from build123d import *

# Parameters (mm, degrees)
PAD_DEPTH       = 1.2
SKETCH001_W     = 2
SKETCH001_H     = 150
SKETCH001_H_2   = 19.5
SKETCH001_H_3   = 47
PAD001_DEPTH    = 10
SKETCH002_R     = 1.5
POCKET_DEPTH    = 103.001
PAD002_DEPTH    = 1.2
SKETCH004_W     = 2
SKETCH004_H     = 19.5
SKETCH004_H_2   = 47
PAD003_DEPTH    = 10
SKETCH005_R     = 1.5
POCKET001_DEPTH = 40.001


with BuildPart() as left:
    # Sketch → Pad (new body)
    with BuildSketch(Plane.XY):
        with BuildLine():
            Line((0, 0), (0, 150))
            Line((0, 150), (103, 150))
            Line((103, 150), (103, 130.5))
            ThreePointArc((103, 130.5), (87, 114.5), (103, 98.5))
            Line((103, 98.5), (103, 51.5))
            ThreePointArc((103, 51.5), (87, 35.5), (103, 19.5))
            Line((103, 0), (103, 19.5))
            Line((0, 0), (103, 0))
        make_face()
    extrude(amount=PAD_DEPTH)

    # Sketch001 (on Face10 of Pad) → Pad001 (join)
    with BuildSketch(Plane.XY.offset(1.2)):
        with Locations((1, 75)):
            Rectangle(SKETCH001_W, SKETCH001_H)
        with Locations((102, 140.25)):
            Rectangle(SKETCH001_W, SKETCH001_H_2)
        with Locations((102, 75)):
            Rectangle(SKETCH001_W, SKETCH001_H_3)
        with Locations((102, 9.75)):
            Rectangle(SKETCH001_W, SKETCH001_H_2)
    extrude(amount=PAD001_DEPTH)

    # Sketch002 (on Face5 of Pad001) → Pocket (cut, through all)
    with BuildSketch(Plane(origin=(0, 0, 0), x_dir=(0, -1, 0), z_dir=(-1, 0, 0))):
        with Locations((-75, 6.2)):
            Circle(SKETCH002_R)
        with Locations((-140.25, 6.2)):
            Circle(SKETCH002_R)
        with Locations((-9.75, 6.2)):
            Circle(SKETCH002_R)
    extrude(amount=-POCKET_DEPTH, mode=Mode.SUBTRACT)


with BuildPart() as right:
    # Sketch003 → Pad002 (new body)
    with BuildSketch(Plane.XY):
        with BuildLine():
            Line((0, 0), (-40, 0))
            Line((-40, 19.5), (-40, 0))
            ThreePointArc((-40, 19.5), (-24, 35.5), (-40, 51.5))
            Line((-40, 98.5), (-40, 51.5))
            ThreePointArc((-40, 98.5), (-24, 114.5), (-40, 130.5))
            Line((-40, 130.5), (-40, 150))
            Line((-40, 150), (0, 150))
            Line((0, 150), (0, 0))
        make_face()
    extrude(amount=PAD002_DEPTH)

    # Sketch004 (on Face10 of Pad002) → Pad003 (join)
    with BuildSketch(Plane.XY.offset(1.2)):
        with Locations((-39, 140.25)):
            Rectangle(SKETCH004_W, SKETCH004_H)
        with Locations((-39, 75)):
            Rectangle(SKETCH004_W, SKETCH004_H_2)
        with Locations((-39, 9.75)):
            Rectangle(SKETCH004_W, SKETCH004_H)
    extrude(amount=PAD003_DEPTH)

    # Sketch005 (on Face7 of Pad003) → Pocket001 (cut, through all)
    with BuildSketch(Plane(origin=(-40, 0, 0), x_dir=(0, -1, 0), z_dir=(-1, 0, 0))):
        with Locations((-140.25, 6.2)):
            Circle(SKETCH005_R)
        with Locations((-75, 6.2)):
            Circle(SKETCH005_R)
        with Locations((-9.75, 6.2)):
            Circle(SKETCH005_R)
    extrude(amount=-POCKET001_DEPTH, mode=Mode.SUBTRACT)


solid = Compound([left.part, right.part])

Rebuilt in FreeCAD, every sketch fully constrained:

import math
import FreeCAD as App
import Part
import Sketcher

V = App.Vector

doc = App.newDocument("Part")
body = doc.addObject("PartDesign::Body", "Body")

# Sketch on XY plane
sketch1 = body.newObject("Sketcher::SketchObject", "Sketch")
sketch1.AttachmentSupport = (doc.getObject("XY_Plane"), [""])
sketch1.MapMode = "FlatFace"
sketch1.addGeometry(Part.LineSegment(V(0, 150, 0), V(0, 0, 0)), False)
sketch1.addGeometry(Part.LineSegment(V(0, 0, 0), V(103, 0, 0)), False)
sketch1.addGeometry(Part.LineSegment(V(103, 0, 0), V(103, 20, 0)), False)
sketch1.addGeometry(Part.ArcOfCircle(Part.Circle(V(103, 36, 0), V(0, 0, 1), 16), math.radians(90), math.radians(270)), False)
sketch1.addGeometry(Part.LineSegment(V(103, 52, 0), V(103, 98, 0)), False)
sketch1.addGeometry(Part.ArcOfCircle(Part.Circle(V(103, 114, 0), V(0, 0, 1), 16), math.radians(90), math.radians(270)), False)
sketch1.addGeometry(Part.LineSegment(V(103, 130, 0), V(103, 150, 0)), False)
sketch1.addGeometry(Part.LineSegment(V(103, 150, 0), V(0, 150, 0)), False)
sketch1.addConstraint(Sketcher.Constraint("Coincident", 0, 2, 1, 1))
sketch1.addConstraint(Sketcher.Constraint("Coincident", 1, 2, 2, 1))
sketch1.addConstraint(Sketcher.Constraint("Coincident", 2, 2, 3, 2))
sketch1.addConstraint(Sketcher.Constraint("Coincident", 3, 1, 4, 1))
sketch1.addConstraint(Sketcher.Constraint("Coincident", 4, 2, 5, 2))
sketch1.addConstraint(Sketcher.Constraint("Coincident", 5, 1, 6, 1))
sketch1.addConstraint(Sketcher.Constraint("Coincident", 6, 2, 7, 1))
sketch1.addConstraint(Sketcher.Constraint("Coincident", 7, 2, 0, 1))
sketch1.addConstraint(Sketcher.Constraint("Vertical", 0))
sketch1.addConstraint(Sketcher.Constraint("Horizontal", 1))
sketch1.addConstraint(Sketcher.Constraint("Vertical", 2))
sketch1.addConstraint(Sketcher.Constraint("Vertical", 4))
sketch1.addConstraint(Sketcher.Constraint("Vertical", 6))
sketch1.addConstraint(Sketcher.Constraint("Horizontal", 7))
sketch1.addConstraint(Sketcher.Constraint("Coincident", 0, 2, -1, 1))
sketch1.addConstraint(Sketcher.Constraint("Equal", 3, 5))
sketch1.addConstraint(Sketcher.Constraint("Vertical", 3, 3, 5, 3))
sketch1.addConstraint(Sketcher.Constraint("Vertical", 5, 3, 1, 2))
sketch1.addConstraint(Sketcher.Constraint("Vertical", 2, 2, 3, 1))
sketch1.addConstraint(Sketcher.Constraint("Vertical", 4, 2, 5, 1))
sketch1.addConstraint(Sketcher.Constraint("Equal", 2, 6))
sketch1.addConstraint(Sketcher.Constraint("Radius", 3, 16.0))
sketch1.addConstraint(Sketcher.Constraint("DistanceX", 1, 1, 1, 2, 103.0))
sketch1.addConstraint(Sketcher.Constraint("DistanceY", 0, 2, 0, 1, 150.0))
sketch1.addConstraint(Sketcher.Constraint("DistanceY", 4, 1, 4, 2, 47.0))
pad1 = body.newObject("PartDesign::Pad", "Pad")
pad1.Profile = sketch1
pad1.Length = 1.2

# Sketch on XY plane
sketch2 = body.newObject("Sketcher::SketchObject", "Sketch001")
sketch2.AttachmentSupport = (doc.getObject("XY_Plane"), [""])
sketch2.MapMode = "FlatFace"
sketch2.AttachmentOffset = App.Placement(V(0, 0, 1.2), App.Rotation())
sketch2.addGeometry(Part.LineSegment(V(0, 150, 0), V(0, 0, 0)), False)
sketch2.addGeometry(Part.LineSegment(V(0, 0, 0), V(2, 0, 0)), False)
sketch2.addGeometry(Part.LineSegment(V(2, 0, 0), V(2, 150, 0)), False)
sketch2.addGeometry(Part.LineSegment(V(2, 150, 0), V(0, 150, 0)), False)
sketch2.addGeometry(Part.LineSegment(V(101, 150, 0), V(101, 130.5, 0)), False)
sketch2.addGeometry(Part.LineSegment(V(101, 130.5, 0), V(103, 130.5, 0)), False)
sketch2.addGeometry(Part.LineSegment(V(103, 130.5, 0), V(103, 150, 0)), False)
sketch2.addGeometry(Part.LineSegment(V(103, 150, 0), V(101, 150, 0)), False)
sketch2.addGeometry(Part.LineSegment(V(101, 98.5, 0), V(101, 51.5, 0)), False)
sketch2.addGeometry(Part.LineSegment(V(101, 51.5, 0), V(103, 51.5, 0)), False)
sketch2.addGeometry(Part.LineSegment(V(103, 51.5, 0), V(103, 98.5, 0)), False)
sketch2.addGeometry(Part.LineSegment(V(103, 98.5, 0), V(101, 98.5, 0)), False)
sketch2.addGeometry(Part.LineSegment(V(101, 19.5, 0), V(101, 0, 0)), False)
sketch2.addGeometry(Part.LineSegment(V(101, 0, 0), V(103, 0, 0)), False)
sketch2.addGeometry(Part.LineSegment(V(103, 0, 0), V(103, 19.5, 0)), False)
sketch2.addGeometry(Part.LineSegment(V(103, 19.5, 0), V(101, 19.5, 0)), False)
sketch2.addConstraint(Sketcher.Constraint("Coincident", 0, 2, 1, 1))
sketch2.addConstraint(Sketcher.Constraint("Coincident", 1, 2, 2, 1))
sketch2.addConstraint(Sketcher.Constraint("Coincident", 2, 2, 3, 1))
sketch2.addConstraint(Sketcher.Constraint("Coincident", 3, 2, 0, 1))
sketch2.addConstraint(Sketcher.Constraint("Coincident", 4, 2, 5, 1))
sketch2.addConstraint(Sketcher.Constraint("Coincident", 5, 2, 6, 1))
sketch2.addConstraint(Sketcher.Constraint("Coincident", 6, 2, 7, 1))
sketch2.addConstraint(Sketcher.Constraint("Coincident", 7, 2, 4, 1))
sketch2.addConstraint(Sketcher.Constraint("Coincident", 8, 2, 9, 1))
sketch2.addConstraint(Sketcher.Constraint("Coincident", 9, 2, 10, 1))
sketch2.addConstraint(Sketcher.Constraint("Coincident", 10, 2, 11, 1))
sketch2.addConstraint(Sketcher.Constraint("Coincident", 11, 2, 8, 1))
sketch2.addConstraint(Sketcher.Constraint("Coincident", 12, 2, 13, 1))
sketch2.addConstraint(Sketcher.Constraint("Coincident", 13, 2, 14, 1))
sketch2.addConstraint(Sketcher.Constraint("Coincident", 14, 2, 15, 1))
sketch2.addConstraint(Sketcher.Constraint("Coincident", 15, 2, 12, 1))
sketch2.addConstraint(Sketcher.Constraint("Vertical", 0))
sketch2.addConstraint(Sketcher.Constraint("Horizontal", 1))
sketch2.addConstraint(Sketcher.Constraint("Vertical", 2))
sketch2.addConstraint(Sketcher.Constraint("Horizontal", 3))
sketch2.addConstraint(Sketcher.Constraint("Vertical", 4))
sketch2.addConstraint(Sketcher.Constraint("Horizontal", 5))
sketch2.addConstraint(Sketcher.Constraint("Vertical", 6))
sketch2.addConstraint(Sketcher.Constraint("Horizontal", 7))
sketch2.addConstraint(Sketcher.Constraint("Vertical", 8))
sketch2.addConstraint(Sketcher.Constraint("Horizontal", 9))
sketch2.addConstraint(Sketcher.Constraint("Vertical", 10))
sketch2.addConstraint(Sketcher.Constraint("Horizontal", 11))
sketch2.addConstraint(Sketcher.Constraint("Vertical", 12))
sketch2.addConstraint(Sketcher.Constraint("Horizontal", 13))
sketch2.addConstraint(Sketcher.Constraint("Vertical", 14))
sketch2.addConstraint(Sketcher.Constraint("Horizontal", 15))
sketch2.addConstraint(Sketcher.Constraint("Coincident", 0, 2, -1, 1))
sketch2.addConstraint(Sketcher.Constraint("PointOnObject", 12, 2, -1))
sketch2.addConstraint(Sketcher.Constraint("Horizontal", 3, 2, 6, 2))
sketch2.addConstraint(Sketcher.Constraint("Vertical", 7, 2, 8, 2))
sketch2.addConstraint(Sketcher.Constraint("Vertical", 6, 2, 9, 2))
sketch2.addConstraint(Sketcher.Constraint("Vertical", 11, 2, 12, 2))
sketch2.addConstraint(Sketcher.Constraint("Vertical", 10, 2, 13, 2))
sketch2.addConstraint(Sketcher.Constraint("Equal", 3, 5))
sketch2.addConstraint(Sketcher.Constraint("Equal", 6, 12))
sketch2.addConstraint(Sketcher.Constraint("DistanceX", 1, 1, 1, 2, 2.0))
sketch2.addConstraint(Sketcher.Constraint("DistanceY", 0, 2, 0, 1, 150.0))
sketch2.addConstraint(Sketcher.Constraint("DistanceY", 8, 2, 8, 1, 47.0))
sketch2.addConstraint(Sketcher.Constraint("DistanceY", 4, 2, 4, 1, 19.5))
sketch2.addConstraint(Sketcher.Constraint("DistanceX", -1, 1, 4, 2, 101.0))
sketch2.addConstraint(Sketcher.Constraint("DistanceY", 8, 2, 4, 2, 79.0))
pad2 = body.newObject("PartDesign::Pad", "Pad001")
pad2.Profile = sketch2
pad2.Length = 10

# Sketch on YZ plane
sketch3 = body.newObject("Sketcher::SketchObject", "Sketch002")
sketch3.AttachmentSupport = (doc.getObject("YZ_Plane"), [""])
sketch3.MapMode = "FlatFace"
sketch3.addGeometry(Part.Circle(V(75, 6.2, 0), V(0, 0, 1), 1.5), False)
sketch3.addGeometry(Part.Circle(V(140.2, 6.2, 0), V(0, 0, 1), 1.5), False)
sketch3.addGeometry(Part.Circle(V(9.8, 6.2, 0), V(0, 0, 1), 1.5), False)
sketch3.addConstraint(Sketcher.Constraint("Equal", 0, 1))
sketch3.addConstraint(Sketcher.Constraint("Equal", 1, 2))
sketch3.addConstraint(Sketcher.Constraint("Horizontal", 0, 3, 1, 3))
sketch3.addConstraint(Sketcher.Constraint("Horizontal", 1, 3, 2, 3))
sketch3.addConstraint(Sketcher.Constraint("Diameter", 0, 3.0))
sketch3.addConstraint(Sketcher.Constraint("DistanceX", -1, 1, 0, 3, 75.0))
sketch3.addConstraint(Sketcher.Constraint("DistanceY", -1, 1, 0, 3, 6.2))
sketch3.addConstraint(Sketcher.Constraint("DistanceX", 2, 3, 1, 3, 130.5))
sketch3.addConstraint(Sketcher.Constraint("DistanceX", -1, 1, 1, 3, 140.25))
pocket1 = body.newObject("PartDesign::Pocket", "Pocket")
pocket1.Profile = sketch3
pocket1.Type = "ThroughAll"
pocket1.Reversed = True
body2 = doc.addObject("PartDesign::Body", "Body001")

# Sketch on XY plane
sketch4 = body2.newObject("Sketcher::SketchObject", "Sketch003")
sketch4.AttachmentSupport = (doc.getObject("XY_Plane001"), [""])
sketch4.MapMode = "FlatFace"
sketch4.addGeometry(Part.LineSegment(V(-40, 0, 0), V(0, 0, 0)), False)
sketch4.addGeometry(Part.LineSegment(V(0, 0, 0), V(0, 150, 0)), False)
sketch4.addGeometry(Part.LineSegment(V(0, 150, 0), V(-40, 150, 0)), False)
sketch4.addGeometry(Part.LineSegment(V(-40, 150, 0), V(-40, 130, 0)), False)
sketch4.addGeometry(Part.ArcOfCircle(Part.Circle(V(-40, 114, 0), V(0, 0, 1), 16), math.radians(-90), math.radians(90)), False)
sketch4.addGeometry(Part.LineSegment(V(-40, 98, 0), V(-40, 52, 0)), False)
sketch4.addGeometry(Part.ArcOfCircle(Part.Circle(V(-40, 36, 0), V(0, 0, 1), 16), math.radians(-90), math.radians(90)), False)
sketch4.addGeometry(Part.LineSegment(V(-40, 20, 0), V(-40, 0, 0)), False)
sketch4.addConstraint(Sketcher.Constraint("Coincident", 0, 2, 1, 1))
sketch4.addConstraint(Sketcher.Constraint("Coincident", 1, 2, 2, 1))
sketch4.addConstraint(Sketcher.Constraint("Coincident", 2, 2, 3, 1))
sketch4.addConstraint(Sketcher.Constraint("Coincident", 3, 2, 4, 2))
sketch4.addConstraint(Sketcher.Constraint("Coincident", 4, 1, 5, 1))
sketch4.addConstraint(Sketcher.Constraint("Coincident", 5, 2, 6, 2))
sketch4.addConstraint(Sketcher.Constraint("Coincident", 6, 1, 7, 1))
sketch4.addConstraint(Sketcher.Constraint("Coincident", 7, 2, 0, 1))
sketch4.addConstraint(Sketcher.Constraint("Horizontal", 0))
sketch4.addConstraint(Sketcher.Constraint("Vertical", 1))
sketch4.addConstraint(Sketcher.Constraint("Horizontal", 2))
sketch4.addConstraint(Sketcher.Constraint("Vertical", 3))
sketch4.addConstraint(Sketcher.Constraint("Vertical", 5))
sketch4.addConstraint(Sketcher.Constraint("Vertical", 7))
sketch4.addConstraint(Sketcher.Constraint("Coincident", 0, 2, -1, 1))
sketch4.addConstraint(Sketcher.Constraint("Equal", 4, 6))
sketch4.addConstraint(Sketcher.Constraint("Vertical", 4, 3, 6, 3))
sketch4.addConstraint(Sketcher.Constraint("Vertical", 6, 3, 2, 2))
sketch4.addConstraint(Sketcher.Constraint("Vertical", 3, 2, 4, 1))
sketch4.addConstraint(Sketcher.Constraint("Vertical", 5, 2, 6, 1))
sketch4.addConstraint(Sketcher.Constraint("Equal", 3, 7))
sketch4.addConstraint(Sketcher.Constraint("Radius", 4, 16.0))
sketch4.addConstraint(Sketcher.Constraint("DistanceX", 0, 1, 0, 2, 40.0))
sketch4.addConstraint(Sketcher.Constraint("DistanceY", 1, 1, 1, 2, 150.0))
sketch4.addConstraint(Sketcher.Constraint("DistanceY", 5, 2, 5, 1, 47.0))
pad3 = body2.newObject("PartDesign::Pad", "Pad002")
pad3.Profile = sketch4
pad3.Length = 1.2

# Sketch on XY plane
sketch5 = body2.newObject("Sketcher::SketchObject", "Sketch004")
sketch5.AttachmentSupport = (doc.getObject("XY_Plane001"), [""])
sketch5.MapMode = "FlatFace"
sketch5.AttachmentOffset = App.Placement(V(0, 0, 1.2), App.Rotation())
sketch5.addGeometry(Part.LineSegment(V(-40, 150, 0), V(-40, 130.5, 0)), False)
sketch5.addGeometry(Part.LineSegment(V(-40, 130.5, 0), V(-38, 130.5, 0)), False)
sketch5.addGeometry(Part.LineSegment(V(-38, 130.5, 0), V(-38, 150, 0)), False)
sketch5.addGeometry(Part.LineSegment(V(-38, 150, 0), V(-40, 150, 0)), False)
sketch5.addGeometry(Part.LineSegment(V(-40, 98.5, 0), V(-40, 51.5, 0)), False)
sketch5.addGeometry(Part.LineSegment(V(-40, 51.5, 0), V(-38, 51.5, 0)), False)
sketch5.addGeometry(Part.LineSegment(V(-38, 51.5, 0), V(-38, 98.5, 0)), False)
sketch5.addGeometry(Part.LineSegment(V(-38, 98.5, 0), V(-40, 98.5, 0)), False)
sketch5.addGeometry(Part.LineSegment(V(-40, 19.5, 0), V(-40, 0, 0)), False)
sketch5.addGeometry(Part.LineSegment(V(-40, 0, 0), V(-38, 0, 0)), False)
sketch5.addGeometry(Part.LineSegment(V(-38, 0, 0), V(-38, 19.5, 0)), False)
sketch5.addGeometry(Part.LineSegment(V(-38, 19.5, 0), V(-40, 19.5, 0)), False)
sketch5.addConstraint(Sketcher.Constraint("Coincident", 0, 2, 1, 1))
sketch5.addConstraint(Sketcher.Constraint("Coincident", 1, 2, 2, 1))
sketch5.addConstraint(Sketcher.Constraint("Coincident", 2, 2, 3, 1))
sketch5.addConstraint(Sketcher.Constraint("Coincident", 3, 2, 0, 1))
sketch5.addConstraint(Sketcher.Constraint("Coincident", 4, 2, 5, 1))
sketch5.addConstraint(Sketcher.Constraint("Coincident", 5, 2, 6, 1))
sketch5.addConstraint(Sketcher.Constraint("Coincident", 6, 2, 7, 1))
sketch5.addConstraint(Sketcher.Constraint("Coincident", 7, 2, 4, 1))
sketch5.addConstraint(Sketcher.Constraint("Coincident", 8, 2, 9, 1))
sketch5.addConstraint(Sketcher.Constraint("Coincident", 9, 2, 10, 1))
sketch5.addConstraint(Sketcher.Constraint("Coincident", 10, 2, 11, 1))
sketch5.addConstraint(Sketcher.Constraint("Coincident", 11, 2, 8, 1))
sketch5.addConstraint(Sketcher.Constraint("Vertical", 0))
sketch5.addConstraint(Sketcher.Constraint("Horizontal", 1))
sketch5.addConstraint(Sketcher.Constraint("Vertical", 2))
sketch5.addConstraint(Sketcher.Constraint("Horizontal", 3))
sketch5.addConstraint(Sketcher.Constraint("Vertical", 4))
sketch5.addConstraint(Sketcher.Constraint("Horizontal", 5))
sketch5.addConstraint(Sketcher.Constraint("Vertical", 6))
sketch5.addConstraint(Sketcher.Constraint("Horizontal", 7))
sketch5.addConstraint(Sketcher.Constraint("Vertical", 8))
sketch5.addConstraint(Sketcher.Constraint("Horizontal", 9))
sketch5.addConstraint(Sketcher.Constraint("Vertical", 10))
sketch5.addConstraint(Sketcher.Constraint("Horizontal", 11))
sketch5.addConstraint(Sketcher.Constraint("PointOnObject", 8, 2, -1))
sketch5.addConstraint(Sketcher.Constraint("Vertical", 3, 2, 4, 2))
sketch5.addConstraint(Sketcher.Constraint("Vertical", 2, 2, 5, 2))
sketch5.addConstraint(Sketcher.Constraint("Vertical", 7, 2, 8, 2))
sketch5.addConstraint(Sketcher.Constraint("Vertical", 6, 2, 9, 2))
sketch5.addConstraint(Sketcher.Constraint("Equal", 2, 8))
sketch5.addConstraint(Sketcher.Constraint("DistanceX", 1, 1, 1, 2, 2.0))
sketch5.addConstraint(Sketcher.Constraint("DistanceY", 4, 2, 4, 1, 47.0))
sketch5.addConstraint(Sketcher.Constraint("DistanceY", 0, 2, 0, 1, 19.5))
sketch5.addConstraint(Sketcher.Constraint("DistanceX", 0, 2, -1, 1, 40.0))
sketch5.addConstraint(Sketcher.Constraint("DistanceY", -1, 1, 2, 2, 150.0))
sketch5.addConstraint(Sketcher.Constraint("DistanceY", 4, 2, 0, 2, 79.0))
pad4 = body2.newObject("PartDesign::Pad", "Pad003")
pad4.Profile = sketch5
pad4.Length = 10

# Sketch on YZ plane
sketch6 = body2.newObject("Sketcher::SketchObject", "Sketch005")
sketch6.AttachmentSupport = (doc.getObject("YZ_Plane001"), [""])
sketch6.MapMode = "FlatFace"
sketch6.AttachmentOffset = App.Placement(V(0, 0, -40), App.Rotation())
sketch6.addGeometry(Part.Circle(V(140.2, 6.2, 0), V(0, 0, 1), 1.5), False)
sketch6.addGeometry(Part.Circle(V(75, 6.2, 0), V(0, 0, 1), 1.5), False)
sketch6.addGeometry(Part.Circle(V(9.8, 6.2, 0), V(0, 0, 1), 1.5), False)
sketch6.addConstraint(Sketcher.Constraint("Equal", 0, 1))
sketch6.addConstraint(Sketcher.Constraint("Equal", 1, 2))
sketch6.addConstraint(Sketcher.Constraint("Horizontal", 0, 3, 1, 3))
sketch6.addConstraint(Sketcher.Constraint("Horizontal", 1, 3, 2, 3))
sketch6.addConstraint(Sketcher.Constraint("Diameter", 0, 3.0))
sketch6.addConstraint(Sketcher.Constraint("DistanceX", -1, 1, 1, 3, 75.0))
sketch6.addConstraint(Sketcher.Constraint("DistanceY", -1, 1, 0, 3, 6.2))
sketch6.addConstraint(Sketcher.Constraint("DistanceX", 2, 3, 0, 3, 130.5))
sketch6.addConstraint(Sketcher.Constraint("DistanceX", -1, 1, 0, 3, 140.25))
pocket2 = body2.newObject("PartDesign::Pocket", "Pocket001")
pocket2.Profile = sketch6
pocket2.Type = "ThroughAll"
pocket2.Reversed = True

doc.recompute()
